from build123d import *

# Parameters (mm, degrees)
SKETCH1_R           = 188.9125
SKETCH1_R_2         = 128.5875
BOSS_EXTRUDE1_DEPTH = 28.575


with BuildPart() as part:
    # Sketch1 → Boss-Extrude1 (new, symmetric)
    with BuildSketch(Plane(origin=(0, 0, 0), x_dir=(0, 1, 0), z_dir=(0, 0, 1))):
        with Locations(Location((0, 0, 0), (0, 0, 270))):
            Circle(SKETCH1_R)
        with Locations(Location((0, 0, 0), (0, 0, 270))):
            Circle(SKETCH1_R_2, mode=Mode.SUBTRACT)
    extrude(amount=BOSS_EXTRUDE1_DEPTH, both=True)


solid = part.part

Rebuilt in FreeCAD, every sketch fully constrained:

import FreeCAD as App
import Part
import Sketcher
from FreeCAD import Vector
Q = App.Units.Quantity

doc = App.newDocument("Part")
params = doc.addObject("Spreadsheet::Sheet", "Params")
for row, (alias, value) in enumerate([
    ("sketch1_diameter", "14.875 in"),
    ("sketch1_diameter2", "10.125 in"),
    ("pad1_length", "2.25 in"),
], start=1):
    params.set(f"A{row}", alias)
    params.set(f"B{row}", "=" + value)
    params.setAlias(f"B{row}", alias)

body = doc.addObject("PartDesign::Body", "Body")

sketch1 = doc.addObject("Sketcher::SketchObject", "Sketch")
body.addObject(sketch1)
sketch1.AttachmentSupport = (doc.XY_Plane, [""])
sketch1.MapMode = "FlatFace"
sketch1.addGeometry([
    Part.Circle(Vector(0, 0, 0), Vector(0, 0, 1), 189),
    Part.Circle(Vector(0, 0, 0), Vector(0, 0, 1), 129),
], False)
sketch1.addConstraint([
    Sketcher.Constraint("Coincident", 0, 3, -1, 1),
    Sketcher.Constraint("Coincident", 1, 3, -1, 1),
    Sketcher.Constraint("Diameter", 0, Q("14.875 in")),
    Sketcher.Constraint("Diameter", 1, Q("10.125 in")),
])
sketch1.setExpression("Constraints[2]", "Params.sketch1_diameter")
sketch1.setExpression("Constraints[3]", "Params.sketch1_diameter2")
pad1 = doc.addObject("PartDesign::Pad", "Pad")
body.addObject(pad1)
pad1.Profile = sketch1
pad1.setExpression("Length", "Params.pad1_length")
pad1.Midplane = True

doc.recompute()
